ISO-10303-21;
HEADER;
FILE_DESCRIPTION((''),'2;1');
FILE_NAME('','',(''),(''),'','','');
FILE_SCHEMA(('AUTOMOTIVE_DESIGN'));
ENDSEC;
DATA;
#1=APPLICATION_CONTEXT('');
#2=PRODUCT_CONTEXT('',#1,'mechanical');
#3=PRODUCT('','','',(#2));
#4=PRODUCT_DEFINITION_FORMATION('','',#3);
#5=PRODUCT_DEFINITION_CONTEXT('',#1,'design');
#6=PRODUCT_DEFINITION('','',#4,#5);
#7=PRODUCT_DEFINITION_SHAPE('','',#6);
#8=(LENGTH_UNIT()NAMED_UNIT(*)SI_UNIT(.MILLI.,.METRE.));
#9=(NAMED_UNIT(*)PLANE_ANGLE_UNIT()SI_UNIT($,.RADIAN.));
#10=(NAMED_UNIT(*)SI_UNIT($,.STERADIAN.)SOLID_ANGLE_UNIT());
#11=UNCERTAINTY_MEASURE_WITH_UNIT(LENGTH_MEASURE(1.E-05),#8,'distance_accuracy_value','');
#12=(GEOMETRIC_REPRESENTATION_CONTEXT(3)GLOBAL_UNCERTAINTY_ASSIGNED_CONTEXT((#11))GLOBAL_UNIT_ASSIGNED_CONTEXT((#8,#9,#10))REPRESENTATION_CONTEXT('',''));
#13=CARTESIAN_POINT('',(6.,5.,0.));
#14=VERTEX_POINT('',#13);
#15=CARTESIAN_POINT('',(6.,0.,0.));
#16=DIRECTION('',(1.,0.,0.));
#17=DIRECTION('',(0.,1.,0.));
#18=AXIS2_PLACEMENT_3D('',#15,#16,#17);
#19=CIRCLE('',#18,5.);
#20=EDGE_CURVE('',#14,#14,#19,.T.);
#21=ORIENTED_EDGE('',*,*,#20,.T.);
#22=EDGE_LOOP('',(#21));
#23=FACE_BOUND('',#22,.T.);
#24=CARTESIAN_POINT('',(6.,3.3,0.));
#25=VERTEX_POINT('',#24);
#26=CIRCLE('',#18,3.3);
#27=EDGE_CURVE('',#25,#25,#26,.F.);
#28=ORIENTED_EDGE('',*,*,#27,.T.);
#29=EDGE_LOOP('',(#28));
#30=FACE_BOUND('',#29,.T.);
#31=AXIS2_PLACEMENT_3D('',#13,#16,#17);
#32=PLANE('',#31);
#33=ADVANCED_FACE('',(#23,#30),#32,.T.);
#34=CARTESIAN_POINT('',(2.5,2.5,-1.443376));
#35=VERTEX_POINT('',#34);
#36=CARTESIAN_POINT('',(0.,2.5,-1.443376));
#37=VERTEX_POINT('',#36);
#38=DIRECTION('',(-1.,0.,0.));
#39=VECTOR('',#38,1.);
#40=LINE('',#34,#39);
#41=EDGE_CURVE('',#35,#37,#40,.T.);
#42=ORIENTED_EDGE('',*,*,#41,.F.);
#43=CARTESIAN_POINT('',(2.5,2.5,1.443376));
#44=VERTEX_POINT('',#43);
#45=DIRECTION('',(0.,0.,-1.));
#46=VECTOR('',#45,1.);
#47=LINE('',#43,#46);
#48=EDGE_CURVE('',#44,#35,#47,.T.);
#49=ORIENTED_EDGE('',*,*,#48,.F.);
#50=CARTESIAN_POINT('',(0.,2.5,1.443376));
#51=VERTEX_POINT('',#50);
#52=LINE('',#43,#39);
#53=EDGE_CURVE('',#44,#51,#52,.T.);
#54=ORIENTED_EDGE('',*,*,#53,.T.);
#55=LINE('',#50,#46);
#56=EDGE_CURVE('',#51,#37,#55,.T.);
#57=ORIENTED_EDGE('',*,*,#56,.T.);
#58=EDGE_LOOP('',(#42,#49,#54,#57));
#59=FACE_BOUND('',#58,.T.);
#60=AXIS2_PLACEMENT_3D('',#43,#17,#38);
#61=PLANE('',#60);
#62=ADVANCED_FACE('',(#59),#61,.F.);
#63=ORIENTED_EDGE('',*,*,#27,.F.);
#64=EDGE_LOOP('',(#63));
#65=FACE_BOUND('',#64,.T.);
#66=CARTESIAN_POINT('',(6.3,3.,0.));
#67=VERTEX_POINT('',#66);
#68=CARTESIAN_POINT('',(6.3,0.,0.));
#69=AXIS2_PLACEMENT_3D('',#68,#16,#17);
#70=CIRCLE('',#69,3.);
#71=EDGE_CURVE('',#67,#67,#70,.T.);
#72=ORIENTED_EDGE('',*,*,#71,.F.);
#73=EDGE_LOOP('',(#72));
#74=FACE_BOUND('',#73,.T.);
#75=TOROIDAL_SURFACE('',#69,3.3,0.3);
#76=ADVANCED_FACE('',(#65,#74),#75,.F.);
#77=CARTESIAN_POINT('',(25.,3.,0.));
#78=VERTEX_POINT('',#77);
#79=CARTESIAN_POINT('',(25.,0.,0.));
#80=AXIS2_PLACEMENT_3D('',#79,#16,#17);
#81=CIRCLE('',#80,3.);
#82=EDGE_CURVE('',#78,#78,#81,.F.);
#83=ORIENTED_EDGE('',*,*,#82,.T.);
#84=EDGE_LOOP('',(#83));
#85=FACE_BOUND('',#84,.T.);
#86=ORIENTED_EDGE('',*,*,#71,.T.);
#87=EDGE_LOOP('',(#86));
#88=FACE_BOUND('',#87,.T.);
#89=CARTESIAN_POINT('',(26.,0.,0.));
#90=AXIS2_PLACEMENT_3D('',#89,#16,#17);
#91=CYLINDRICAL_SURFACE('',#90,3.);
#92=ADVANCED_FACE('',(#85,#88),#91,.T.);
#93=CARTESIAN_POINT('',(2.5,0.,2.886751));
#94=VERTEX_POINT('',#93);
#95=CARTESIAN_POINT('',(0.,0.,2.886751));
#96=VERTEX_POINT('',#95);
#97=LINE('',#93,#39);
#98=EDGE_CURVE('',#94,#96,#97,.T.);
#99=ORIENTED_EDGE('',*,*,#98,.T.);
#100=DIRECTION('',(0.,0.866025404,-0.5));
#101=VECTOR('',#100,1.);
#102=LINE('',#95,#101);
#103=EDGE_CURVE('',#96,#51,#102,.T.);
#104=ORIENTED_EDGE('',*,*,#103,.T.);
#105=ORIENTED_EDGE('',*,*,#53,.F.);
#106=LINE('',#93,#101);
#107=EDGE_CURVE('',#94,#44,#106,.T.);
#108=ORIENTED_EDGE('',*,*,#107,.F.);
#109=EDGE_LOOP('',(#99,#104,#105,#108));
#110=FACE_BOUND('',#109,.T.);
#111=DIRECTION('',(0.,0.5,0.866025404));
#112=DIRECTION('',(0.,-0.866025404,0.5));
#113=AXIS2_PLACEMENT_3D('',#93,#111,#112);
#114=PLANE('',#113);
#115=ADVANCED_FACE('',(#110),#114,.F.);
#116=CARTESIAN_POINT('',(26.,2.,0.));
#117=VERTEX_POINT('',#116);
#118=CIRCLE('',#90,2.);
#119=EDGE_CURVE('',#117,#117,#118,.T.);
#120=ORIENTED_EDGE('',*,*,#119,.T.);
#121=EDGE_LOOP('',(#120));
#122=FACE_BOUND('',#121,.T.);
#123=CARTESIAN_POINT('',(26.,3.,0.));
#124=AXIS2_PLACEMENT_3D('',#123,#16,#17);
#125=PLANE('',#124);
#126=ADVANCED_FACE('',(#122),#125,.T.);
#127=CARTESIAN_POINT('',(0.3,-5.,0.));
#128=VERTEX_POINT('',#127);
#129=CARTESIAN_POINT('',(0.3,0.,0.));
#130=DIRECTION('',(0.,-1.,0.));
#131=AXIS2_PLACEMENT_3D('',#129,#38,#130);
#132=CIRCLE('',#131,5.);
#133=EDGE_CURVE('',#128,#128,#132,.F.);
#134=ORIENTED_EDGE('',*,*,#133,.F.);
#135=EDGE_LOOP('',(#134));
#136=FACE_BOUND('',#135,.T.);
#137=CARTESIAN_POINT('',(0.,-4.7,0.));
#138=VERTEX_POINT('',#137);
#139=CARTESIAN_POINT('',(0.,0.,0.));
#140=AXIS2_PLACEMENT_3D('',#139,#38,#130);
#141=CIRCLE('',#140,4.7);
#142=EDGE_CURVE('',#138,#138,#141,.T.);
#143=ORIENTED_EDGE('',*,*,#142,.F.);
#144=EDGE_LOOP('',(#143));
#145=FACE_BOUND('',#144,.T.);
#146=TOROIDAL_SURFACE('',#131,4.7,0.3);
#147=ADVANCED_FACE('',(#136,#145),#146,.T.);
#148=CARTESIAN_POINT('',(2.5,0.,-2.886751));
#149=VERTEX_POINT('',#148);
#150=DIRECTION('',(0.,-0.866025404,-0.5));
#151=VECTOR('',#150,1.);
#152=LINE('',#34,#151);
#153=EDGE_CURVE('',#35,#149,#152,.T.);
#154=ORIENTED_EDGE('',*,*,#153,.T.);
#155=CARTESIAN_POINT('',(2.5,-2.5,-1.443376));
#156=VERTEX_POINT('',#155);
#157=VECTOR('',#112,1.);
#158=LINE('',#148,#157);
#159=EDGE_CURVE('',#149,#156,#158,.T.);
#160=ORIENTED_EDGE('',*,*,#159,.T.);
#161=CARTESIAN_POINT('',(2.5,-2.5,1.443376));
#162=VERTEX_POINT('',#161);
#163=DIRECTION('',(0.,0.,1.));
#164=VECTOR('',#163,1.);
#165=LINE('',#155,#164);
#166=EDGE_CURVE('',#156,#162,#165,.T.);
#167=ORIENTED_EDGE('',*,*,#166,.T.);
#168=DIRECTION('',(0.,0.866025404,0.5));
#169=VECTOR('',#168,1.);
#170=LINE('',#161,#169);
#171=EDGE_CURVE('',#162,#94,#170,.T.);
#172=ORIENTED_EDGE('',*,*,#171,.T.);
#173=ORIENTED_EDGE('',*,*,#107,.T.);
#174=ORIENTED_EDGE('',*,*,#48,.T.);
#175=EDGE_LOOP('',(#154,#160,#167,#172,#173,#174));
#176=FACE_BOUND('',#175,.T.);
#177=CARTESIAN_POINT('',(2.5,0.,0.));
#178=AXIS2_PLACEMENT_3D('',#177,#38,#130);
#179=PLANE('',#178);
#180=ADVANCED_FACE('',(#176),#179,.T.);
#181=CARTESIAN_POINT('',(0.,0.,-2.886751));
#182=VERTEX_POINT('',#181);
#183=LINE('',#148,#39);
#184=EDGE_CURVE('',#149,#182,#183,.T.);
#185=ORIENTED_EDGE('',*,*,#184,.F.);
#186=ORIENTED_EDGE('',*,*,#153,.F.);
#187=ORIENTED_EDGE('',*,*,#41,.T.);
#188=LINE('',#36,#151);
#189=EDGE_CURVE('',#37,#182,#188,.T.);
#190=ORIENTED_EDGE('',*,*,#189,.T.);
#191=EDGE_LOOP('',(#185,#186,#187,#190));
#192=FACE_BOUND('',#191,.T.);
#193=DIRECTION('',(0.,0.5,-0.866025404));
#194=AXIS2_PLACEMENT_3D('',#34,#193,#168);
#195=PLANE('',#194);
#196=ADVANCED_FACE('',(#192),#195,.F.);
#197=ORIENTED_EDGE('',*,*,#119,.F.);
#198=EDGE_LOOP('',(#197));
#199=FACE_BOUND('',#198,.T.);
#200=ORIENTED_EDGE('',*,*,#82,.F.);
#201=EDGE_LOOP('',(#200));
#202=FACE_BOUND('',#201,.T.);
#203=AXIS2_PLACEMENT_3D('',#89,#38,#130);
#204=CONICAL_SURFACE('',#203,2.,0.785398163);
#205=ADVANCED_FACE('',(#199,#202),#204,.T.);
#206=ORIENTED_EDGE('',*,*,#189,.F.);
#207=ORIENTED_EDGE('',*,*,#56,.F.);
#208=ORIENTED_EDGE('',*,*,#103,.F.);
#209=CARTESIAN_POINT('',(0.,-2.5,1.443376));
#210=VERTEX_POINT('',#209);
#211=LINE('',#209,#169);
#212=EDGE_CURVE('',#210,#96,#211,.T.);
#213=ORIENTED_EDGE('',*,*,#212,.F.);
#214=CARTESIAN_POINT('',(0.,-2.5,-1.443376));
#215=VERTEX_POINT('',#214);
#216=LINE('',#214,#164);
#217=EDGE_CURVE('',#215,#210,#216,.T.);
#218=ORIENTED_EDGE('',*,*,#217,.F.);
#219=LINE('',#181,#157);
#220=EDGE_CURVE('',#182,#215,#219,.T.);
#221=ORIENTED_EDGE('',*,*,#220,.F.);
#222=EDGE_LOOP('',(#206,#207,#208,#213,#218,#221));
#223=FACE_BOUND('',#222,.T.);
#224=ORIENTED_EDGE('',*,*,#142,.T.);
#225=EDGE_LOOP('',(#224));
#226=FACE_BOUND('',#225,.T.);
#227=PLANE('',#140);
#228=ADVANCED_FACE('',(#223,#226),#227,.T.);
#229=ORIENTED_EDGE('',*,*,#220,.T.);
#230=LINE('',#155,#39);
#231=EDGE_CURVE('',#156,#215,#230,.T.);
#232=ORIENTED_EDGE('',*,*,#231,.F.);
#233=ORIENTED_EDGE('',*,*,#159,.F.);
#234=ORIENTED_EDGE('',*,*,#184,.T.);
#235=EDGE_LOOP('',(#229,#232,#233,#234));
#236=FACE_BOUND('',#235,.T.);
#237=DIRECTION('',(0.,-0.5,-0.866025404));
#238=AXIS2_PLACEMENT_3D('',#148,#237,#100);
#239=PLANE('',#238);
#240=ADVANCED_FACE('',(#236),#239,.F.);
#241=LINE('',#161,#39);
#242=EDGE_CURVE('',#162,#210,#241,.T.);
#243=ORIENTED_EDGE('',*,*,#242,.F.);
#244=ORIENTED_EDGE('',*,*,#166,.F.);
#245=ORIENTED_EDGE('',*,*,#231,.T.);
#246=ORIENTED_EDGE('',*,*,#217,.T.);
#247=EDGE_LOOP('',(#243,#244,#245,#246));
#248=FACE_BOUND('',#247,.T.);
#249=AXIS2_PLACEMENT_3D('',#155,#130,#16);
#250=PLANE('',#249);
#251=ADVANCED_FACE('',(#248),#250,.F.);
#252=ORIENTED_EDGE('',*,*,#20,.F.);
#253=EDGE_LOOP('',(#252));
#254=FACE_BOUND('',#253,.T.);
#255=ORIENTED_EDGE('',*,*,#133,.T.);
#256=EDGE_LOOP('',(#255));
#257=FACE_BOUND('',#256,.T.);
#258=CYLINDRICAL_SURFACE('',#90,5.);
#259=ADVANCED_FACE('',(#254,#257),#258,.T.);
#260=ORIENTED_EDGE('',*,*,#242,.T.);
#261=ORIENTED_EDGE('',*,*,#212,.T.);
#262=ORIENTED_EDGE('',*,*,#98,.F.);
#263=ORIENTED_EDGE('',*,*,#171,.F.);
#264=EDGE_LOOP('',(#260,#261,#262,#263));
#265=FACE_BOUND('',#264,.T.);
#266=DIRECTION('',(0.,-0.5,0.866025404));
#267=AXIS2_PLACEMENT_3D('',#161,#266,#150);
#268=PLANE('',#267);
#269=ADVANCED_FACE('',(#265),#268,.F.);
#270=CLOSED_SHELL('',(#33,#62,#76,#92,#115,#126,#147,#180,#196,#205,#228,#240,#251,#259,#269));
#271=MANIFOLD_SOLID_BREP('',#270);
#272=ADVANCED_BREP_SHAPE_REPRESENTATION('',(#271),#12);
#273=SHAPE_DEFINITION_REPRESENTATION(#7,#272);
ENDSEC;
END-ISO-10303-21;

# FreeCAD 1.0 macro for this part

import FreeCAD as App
import Part
import Sketcher
from FreeCAD import Vector
Q = App.Units.Quantity


def edges_at(feature, points):
    """Names of the edges that pass closest to the given points."""
    edges = feature.Shape.Edges
    near = lambda p: min(range(len(edges)), key=lambda i: edges[i].distToShape(Part.Vertex(*p))[0])
    return sorted({f"Edge{near(p) + 1}" for p in points})


def add_polygon(sketch, points):
    """Adds a closed chain of lines whose ends are joined by coincident constraints."""
    first, n = sketch.GeometryCount, len(points)
    for a, b in zip(points, points[1:] + points[:1]):
        sketch.addGeometry(Part.LineSegment(App.Vector(*a, 0), App.Vector(*b, 0)), False)
    for i in range(n):
        sketch.addConstraint(Sketcher.Constraint("Coincident", first + i, 2, first + (i + 1) % n, 1))

doc = App.newDocument("Part")
params = doc.addObject("Spreadsheet::Sheet", "Params")
for row, (alias, value) in enumerate([
    ("sketch1_width", "26 mm"),
    ("sketch1_width2", "20 mm"),
    ("sketch1_height", "5 mm"),
    ("sketch1_height2", "3 mm"),
    ("revolution_angle", "360 deg"),
    ("pocket1_length", "2.5 mm"),
    ("fillet_radius", "0.3 mm"),
    ("chamfer_size", "1 mm"),
], start=1):
    params.set(f"A{row}", alias)
    params.set(f"B{row}", "=" + value)
    params.setAlias(f"B{row}", alias)

body = doc.addObject("PartDesign::Body", "Body")

# Sketch on XY plane
sketch1 = body.newObject("Sketcher::SketchObject", "Sketch")
sketch1.AttachmentSupport = (doc.getObject("XY_Plane"), [""])
sketch1.MapMode = "FlatFace"
add_polygon(sketch1, [(0, 5), (0, 0), (26, 0), (26, 3), (6, 3), (6, 5)])  # lines 0-5
sketch1.addConstraint(Sketcher.Constraint("Vertical", 0))
sketch1.addConstraint(Sketcher.Constraint("Horizontal", 1))
sketch1.addConstraint(Sketcher.Constraint("Vertical", 2))
sketch1.addConstraint(Sketcher.Constraint("Horizontal", 3))
sketch1.addConstraint(Sketcher.Constraint("Vertical", 4))
sketch1.addConstraint(Sketcher.Constraint("Horizontal", 5))
sketch1.addConstraint(Sketcher.Constraint("Coincident", 0, 2, -1, 1))
sketch1.addConstraint(Sketcher.Constraint("DistanceX", 1, 1, 1, 2, Q("26 mm")))
sketch1.addConstraint(Sketcher.Constraint("DistanceX", 3, 2, 3, 1, Q("20 mm")))
sketch1.addConstraint(Sketcher.Constraint("DistanceY", 0, 2, 0, 1, Q("5 mm")))
sketch1.addConstraint(Sketcher.Constraint("DistanceY", 2, 1, 2, 2, Q("3 mm")))
sketch1.setExpression("Constraints[13]", "Params.sketch1_width")
sketch1.setExpression("Constraints[14]", "Params.sketch1_width2")
sketch1.setExpression("Constraints[15]", "Params.sketch1_height")
sketch1.setExpression("Constraints[16]", "Params.sketch1_height2")
revolution = body.newObject("PartDesign::Revolution", "Revolution")
revolution.Profile = sketch1
revolution.ReferenceAxis = (sketch1, ["H_Axis"])
revolution.setExpression("Angle", "Params.revolution_angle")

# Sketch on YZ plane
sketch2 = body.newObject("Sketcher::SketchObject", "Sketch001")
sketch2.AttachmentSupport = (doc.getObject("YZ_Plane"), [""])
sketch2.MapMode = "FlatFace"
add_polygon(sketch2, [(2.5, -1.4), (0, -2.9), (-2.5, -1.4), (-2.5, 1.4), (0, 2.9), (2.5, 1.4)])  # lines 0-5
sketch2.addConstraint(Sketcher.Constraint("Vertical", 2))
sketch2.addConstraint(Sketcher.Constraint("Vertical", 5))
sketch2.addConstraint(Sketcher.Constraint("Symmetric", 0, 2, 3, 2, -1, 1))
sketch2.addConstraint(Sketcher.Constraint("Symmetric", 1, 2, 4, 2, -1, 1))
sketch2.addConstraint(Sketcher.Constraint("PointOnObject", 0, 2, -2))
sketch2.addConstraint(Sketcher.Constraint("Parallel", 0, 3))
sketch2.addConstraint(Sketcher.Constraint("Horizontal", 2, 2, 4, 2))
sketch2.addConstraint(Sketcher.Constraint("Angle", 0, Q("-150 deg")))
sketch2.addConstraint(Sketcher.Constraint("DistanceX", 2, 2, 4, 2, Q("5 mm")))
sketch2.addConstraint(Sketcher.Constraint("DistanceY", 2, 1, 2, 2, Q("2.886751 mm")))
pocket1 = body.newObject("PartDesign::Pocket", "Pocket")
pocket1.Profile = sketch2
pocket1.setExpression("Length", "Params.pocket1_length")
pocket1.Reversed = True
doc.recompute()

fillet = body.newObject("PartDesign::Fillet", "Fillet")
fillet.Base = (pocket1, edges_at(pocket1, [(6, -3, 0), (0, -5, 0)]))
fillet.setExpression("Radius", "Params.fillet_radius")
doc.recompute()

chamfer = body.newObject("PartDesign::Chamfer", "Chamfer")
chamfer.Base = (fillet, edges_at(fillet, [(26, -3, 0)]))
chamfer.setExpression("Size", "Params.chamfer_size")

doc.recompute()
